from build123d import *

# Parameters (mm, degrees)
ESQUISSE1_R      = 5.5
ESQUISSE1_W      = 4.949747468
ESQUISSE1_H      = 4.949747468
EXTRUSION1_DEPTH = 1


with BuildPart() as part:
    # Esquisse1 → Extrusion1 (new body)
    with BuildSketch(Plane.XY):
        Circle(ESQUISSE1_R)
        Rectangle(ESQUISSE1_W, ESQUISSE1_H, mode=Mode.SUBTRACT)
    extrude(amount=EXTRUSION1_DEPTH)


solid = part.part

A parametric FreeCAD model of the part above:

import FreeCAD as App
import Part
import Sketcher

V = App.Vector

doc = App.newDocument("Part")
body = doc.addObject("PartDesign::Body", "Body")

sketch1 = doc.addObject("Sketcher::SketchObject", "Sketch")
body.addObject(sketch1)
sketch1.AttachmentSupport = (doc.XY_Plane, [""])
sketch1.MapMode = "FlatFace"
sketch1.addGeometry([
    Part.Circle(V(0, 0, 0), V(0, 0, 1), 5.5),
    Part.LineSegment(V(2.5, -2.5, 0), V(-2.5, -2.5, 0)),
    Part.LineSegment(V(-2.5, -2.5, 0), V(-2.5, 2.5, 0)),
    Part.LineSegment(V(-2.5, 2.5, 0), V(2.5, 2.5, 0)),
    Part.LineSegment(V(2.5, 2.5, 0), V(2.5, -2.5, 0)),
], False)
sketch1.addConstraint([
    Sketcher.Constraint("Coincident", 1, 2, 2, 1),
    Sketcher.Constraint("Coincident", 2, 2, 3, 1),
    Sketcher.Constraint("Coincident", 3, 2, 4, 1),
    Sketcher.Constraint("Coincident", 4, 2, 1, 1),
    Sketcher.Constraint("Horizontal", 1),
    Sketcher.Constraint("Vertical", 2),
    Sketcher.Constraint("Horizontal", 3),
    Sketcher.Constraint("Vertical", 4),
    Sketcher.Constraint("Coincident", 0, 3, -1, 1),
    Sketcher.Constraint("Symmetric", 1, 2, 3, 2, -1, 1),
    Sketcher.Constraint("Equal", 3, 2),
    Sketcher.Constraint("Diameter", 0, 11.0),
    Sketcher.Constraint("DistanceX", 1, 2, 1, 1, 4.949747),
])
pad1 = doc.addObject("PartDesign::Pad", "Pad")
body.addObject(pad1)
pad1.Profile = sketch1
pad1.Length = 1

doc.recompute()
